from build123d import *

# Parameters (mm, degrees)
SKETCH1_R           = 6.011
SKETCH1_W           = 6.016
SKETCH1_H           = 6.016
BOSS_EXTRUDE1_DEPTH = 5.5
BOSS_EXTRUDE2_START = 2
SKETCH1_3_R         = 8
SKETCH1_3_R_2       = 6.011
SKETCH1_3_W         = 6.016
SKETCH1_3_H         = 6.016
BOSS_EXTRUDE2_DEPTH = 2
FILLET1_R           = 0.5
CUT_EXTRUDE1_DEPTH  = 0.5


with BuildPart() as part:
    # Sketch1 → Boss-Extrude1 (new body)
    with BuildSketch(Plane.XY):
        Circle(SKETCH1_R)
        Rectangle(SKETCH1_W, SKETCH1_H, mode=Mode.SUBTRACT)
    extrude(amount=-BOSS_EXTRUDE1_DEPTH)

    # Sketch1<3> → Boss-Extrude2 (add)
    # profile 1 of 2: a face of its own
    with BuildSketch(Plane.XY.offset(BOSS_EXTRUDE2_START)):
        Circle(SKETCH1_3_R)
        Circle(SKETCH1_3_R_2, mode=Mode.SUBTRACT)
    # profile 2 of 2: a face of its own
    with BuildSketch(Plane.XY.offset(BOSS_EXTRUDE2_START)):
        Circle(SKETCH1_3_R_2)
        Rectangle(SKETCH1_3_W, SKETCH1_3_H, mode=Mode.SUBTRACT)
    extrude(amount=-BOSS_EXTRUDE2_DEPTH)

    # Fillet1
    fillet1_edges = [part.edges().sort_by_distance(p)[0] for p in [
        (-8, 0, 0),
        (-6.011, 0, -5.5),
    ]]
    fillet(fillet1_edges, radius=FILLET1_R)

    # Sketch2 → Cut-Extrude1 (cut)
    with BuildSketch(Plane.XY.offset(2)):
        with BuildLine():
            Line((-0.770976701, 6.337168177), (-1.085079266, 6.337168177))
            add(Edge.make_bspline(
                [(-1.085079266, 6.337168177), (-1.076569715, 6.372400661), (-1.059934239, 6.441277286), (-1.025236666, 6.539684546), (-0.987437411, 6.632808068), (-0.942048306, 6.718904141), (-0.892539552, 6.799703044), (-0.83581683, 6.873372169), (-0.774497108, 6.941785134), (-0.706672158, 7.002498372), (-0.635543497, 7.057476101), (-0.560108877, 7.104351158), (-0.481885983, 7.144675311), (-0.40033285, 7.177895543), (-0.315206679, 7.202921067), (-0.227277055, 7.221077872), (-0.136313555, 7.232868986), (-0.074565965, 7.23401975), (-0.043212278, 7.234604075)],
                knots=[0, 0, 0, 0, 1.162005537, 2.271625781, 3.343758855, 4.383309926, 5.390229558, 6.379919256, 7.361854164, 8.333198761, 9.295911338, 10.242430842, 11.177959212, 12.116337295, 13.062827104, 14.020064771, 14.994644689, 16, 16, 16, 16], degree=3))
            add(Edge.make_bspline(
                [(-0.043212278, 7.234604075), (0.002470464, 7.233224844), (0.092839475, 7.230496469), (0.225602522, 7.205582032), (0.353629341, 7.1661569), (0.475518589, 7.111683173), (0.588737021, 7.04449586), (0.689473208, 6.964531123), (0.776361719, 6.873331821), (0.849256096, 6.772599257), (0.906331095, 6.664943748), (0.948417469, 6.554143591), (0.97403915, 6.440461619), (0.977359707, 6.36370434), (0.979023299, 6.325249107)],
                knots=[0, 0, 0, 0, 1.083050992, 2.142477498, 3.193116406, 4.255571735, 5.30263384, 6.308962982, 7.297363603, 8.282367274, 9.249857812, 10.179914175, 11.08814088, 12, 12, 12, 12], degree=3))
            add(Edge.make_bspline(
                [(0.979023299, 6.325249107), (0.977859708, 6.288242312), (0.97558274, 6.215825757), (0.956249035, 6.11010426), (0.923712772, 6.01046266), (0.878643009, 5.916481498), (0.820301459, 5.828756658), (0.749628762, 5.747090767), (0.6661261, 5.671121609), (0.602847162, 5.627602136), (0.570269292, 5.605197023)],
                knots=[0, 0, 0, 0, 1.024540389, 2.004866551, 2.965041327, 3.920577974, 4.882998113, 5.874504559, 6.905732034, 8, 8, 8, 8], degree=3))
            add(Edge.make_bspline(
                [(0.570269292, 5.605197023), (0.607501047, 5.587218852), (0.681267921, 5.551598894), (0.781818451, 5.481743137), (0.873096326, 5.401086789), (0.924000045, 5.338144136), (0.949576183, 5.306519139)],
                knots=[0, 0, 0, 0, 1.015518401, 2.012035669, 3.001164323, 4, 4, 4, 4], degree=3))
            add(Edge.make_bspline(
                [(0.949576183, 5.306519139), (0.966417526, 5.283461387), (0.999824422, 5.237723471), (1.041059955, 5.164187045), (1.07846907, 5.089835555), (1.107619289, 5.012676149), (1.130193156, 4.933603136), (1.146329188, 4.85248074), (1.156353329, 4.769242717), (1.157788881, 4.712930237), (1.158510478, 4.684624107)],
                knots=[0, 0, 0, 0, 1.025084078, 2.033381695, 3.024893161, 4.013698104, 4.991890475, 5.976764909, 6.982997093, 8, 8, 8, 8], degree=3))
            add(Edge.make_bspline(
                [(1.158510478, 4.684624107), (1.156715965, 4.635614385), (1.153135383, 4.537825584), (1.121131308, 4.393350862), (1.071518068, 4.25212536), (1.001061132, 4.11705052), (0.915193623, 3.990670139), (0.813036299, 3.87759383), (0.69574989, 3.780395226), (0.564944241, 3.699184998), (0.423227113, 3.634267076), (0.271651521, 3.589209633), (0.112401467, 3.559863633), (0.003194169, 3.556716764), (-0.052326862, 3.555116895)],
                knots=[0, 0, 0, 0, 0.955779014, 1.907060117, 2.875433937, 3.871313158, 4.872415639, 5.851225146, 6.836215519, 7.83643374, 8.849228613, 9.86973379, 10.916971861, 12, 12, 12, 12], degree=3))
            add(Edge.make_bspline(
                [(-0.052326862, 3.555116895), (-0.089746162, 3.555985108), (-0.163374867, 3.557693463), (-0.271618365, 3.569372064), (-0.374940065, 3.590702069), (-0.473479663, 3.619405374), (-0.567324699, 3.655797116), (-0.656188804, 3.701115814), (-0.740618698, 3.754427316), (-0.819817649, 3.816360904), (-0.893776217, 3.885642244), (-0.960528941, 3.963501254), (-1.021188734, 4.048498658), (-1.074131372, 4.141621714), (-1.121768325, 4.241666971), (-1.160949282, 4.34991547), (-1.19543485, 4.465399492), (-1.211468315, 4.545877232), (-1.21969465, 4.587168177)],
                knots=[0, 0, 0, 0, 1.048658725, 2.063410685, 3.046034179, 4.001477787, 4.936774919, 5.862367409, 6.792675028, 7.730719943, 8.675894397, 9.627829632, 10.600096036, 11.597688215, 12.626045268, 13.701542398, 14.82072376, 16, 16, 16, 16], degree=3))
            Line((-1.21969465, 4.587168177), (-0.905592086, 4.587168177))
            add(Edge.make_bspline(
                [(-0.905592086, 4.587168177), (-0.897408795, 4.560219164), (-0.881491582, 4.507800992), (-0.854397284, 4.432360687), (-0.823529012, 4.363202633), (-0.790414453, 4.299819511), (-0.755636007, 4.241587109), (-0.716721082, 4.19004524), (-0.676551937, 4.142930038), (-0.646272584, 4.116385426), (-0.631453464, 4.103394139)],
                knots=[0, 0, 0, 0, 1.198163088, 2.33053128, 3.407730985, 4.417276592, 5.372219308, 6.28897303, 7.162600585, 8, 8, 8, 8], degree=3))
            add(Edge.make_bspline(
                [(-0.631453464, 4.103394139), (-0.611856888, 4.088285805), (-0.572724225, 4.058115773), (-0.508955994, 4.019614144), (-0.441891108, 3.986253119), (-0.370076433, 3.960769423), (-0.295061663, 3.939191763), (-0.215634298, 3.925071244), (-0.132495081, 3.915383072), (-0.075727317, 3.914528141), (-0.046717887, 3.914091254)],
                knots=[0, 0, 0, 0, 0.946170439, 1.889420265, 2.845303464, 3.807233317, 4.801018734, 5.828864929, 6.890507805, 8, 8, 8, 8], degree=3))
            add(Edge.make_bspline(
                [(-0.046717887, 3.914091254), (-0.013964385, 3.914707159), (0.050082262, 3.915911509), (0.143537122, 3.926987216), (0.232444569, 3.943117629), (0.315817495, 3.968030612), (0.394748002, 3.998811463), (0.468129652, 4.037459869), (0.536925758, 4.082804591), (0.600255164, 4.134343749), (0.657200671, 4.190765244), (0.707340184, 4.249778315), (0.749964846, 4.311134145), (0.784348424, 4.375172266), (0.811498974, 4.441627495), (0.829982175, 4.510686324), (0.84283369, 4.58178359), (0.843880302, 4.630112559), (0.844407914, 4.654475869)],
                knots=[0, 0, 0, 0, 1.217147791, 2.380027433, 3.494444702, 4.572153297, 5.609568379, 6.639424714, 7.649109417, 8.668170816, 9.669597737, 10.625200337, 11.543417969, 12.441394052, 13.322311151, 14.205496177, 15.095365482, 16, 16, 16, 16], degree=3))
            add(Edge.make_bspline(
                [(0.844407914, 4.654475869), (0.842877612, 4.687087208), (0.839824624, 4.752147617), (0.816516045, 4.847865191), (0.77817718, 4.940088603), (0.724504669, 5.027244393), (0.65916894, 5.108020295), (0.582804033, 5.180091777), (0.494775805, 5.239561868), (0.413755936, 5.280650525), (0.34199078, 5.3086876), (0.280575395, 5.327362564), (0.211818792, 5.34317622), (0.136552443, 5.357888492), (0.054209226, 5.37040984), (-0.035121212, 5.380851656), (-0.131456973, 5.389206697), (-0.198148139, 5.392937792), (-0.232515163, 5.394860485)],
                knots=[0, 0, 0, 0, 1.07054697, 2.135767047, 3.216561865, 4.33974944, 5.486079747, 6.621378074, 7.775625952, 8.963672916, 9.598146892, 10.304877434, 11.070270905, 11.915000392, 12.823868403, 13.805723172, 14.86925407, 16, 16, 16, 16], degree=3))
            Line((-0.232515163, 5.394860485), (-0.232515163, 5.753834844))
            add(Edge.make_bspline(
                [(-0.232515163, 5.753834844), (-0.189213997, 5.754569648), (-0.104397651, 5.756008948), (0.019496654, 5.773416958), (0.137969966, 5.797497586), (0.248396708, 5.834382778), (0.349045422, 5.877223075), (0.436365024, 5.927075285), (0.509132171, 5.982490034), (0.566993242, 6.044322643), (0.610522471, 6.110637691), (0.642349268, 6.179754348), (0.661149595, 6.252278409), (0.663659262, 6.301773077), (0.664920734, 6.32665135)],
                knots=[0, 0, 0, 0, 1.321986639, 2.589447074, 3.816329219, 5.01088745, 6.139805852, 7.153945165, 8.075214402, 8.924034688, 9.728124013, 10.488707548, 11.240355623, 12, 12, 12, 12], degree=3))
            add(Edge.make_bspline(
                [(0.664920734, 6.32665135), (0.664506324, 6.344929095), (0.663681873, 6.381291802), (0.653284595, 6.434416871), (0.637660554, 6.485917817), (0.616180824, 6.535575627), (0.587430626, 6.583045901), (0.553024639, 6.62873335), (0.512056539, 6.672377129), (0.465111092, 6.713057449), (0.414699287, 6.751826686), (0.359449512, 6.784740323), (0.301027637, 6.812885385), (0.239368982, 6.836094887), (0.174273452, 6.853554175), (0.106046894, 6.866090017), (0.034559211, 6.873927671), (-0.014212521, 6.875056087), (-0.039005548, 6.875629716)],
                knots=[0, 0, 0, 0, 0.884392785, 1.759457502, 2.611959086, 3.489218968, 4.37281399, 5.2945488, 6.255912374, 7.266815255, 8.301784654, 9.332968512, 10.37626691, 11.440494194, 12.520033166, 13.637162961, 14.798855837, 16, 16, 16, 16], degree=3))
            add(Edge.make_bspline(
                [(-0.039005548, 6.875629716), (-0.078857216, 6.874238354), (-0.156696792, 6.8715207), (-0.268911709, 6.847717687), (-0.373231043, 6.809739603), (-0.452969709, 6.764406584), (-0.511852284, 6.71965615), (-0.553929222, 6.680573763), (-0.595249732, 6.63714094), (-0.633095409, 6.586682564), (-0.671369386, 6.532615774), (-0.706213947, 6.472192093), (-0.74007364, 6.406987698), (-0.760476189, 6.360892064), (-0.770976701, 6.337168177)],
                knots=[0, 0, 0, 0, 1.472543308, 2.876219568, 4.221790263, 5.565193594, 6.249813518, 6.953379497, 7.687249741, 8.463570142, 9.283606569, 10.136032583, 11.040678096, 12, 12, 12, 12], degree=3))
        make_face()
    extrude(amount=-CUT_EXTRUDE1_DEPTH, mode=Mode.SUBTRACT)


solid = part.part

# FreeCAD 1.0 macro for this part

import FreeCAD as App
import Part
import Sketcher
from FreeCAD import Vector
Q = App.Units.Quantity


def edges_at(feature, points):
    """Names of the edges that pass closest to the given points."""
    edges = feature.Shape.Edges
    near = lambda p: min(range(len(edges)), key=lambda i: edges[i].distToShape(Part.Vertex(*p))[0])
    return sorted({f"Edge{near(p) + 1}" for p in points})

doc = App.newDocument("Part")
body = doc.addObject("PartDesign::Body", "Body")

sketch1 = body.newObject("Sketcher::SketchObject", "Sketch")
sketch1.AttachmentSupport = (doc.getObject("XY_Plane"), [""])
sketch1.MapMode = "FlatFace"
sketch1.addGeometry([
    Part.Circle(Vector(0, 0, 0), Vector(0, 0, 1), 6),
    Part.LineSegment(Vector(3, -3, 0), Vector(-3, -3, 0)),
    Part.LineSegment(Vector(-3, -3, 0), Vector(-3, 3, 0)),
    Part.LineSegment(Vector(-3, 3, 0), Vector(3, 3, 0)),
    Part.LineSegment(Vector(3, 3, 0), Vector(3, -3, 0)),
], False)
sketch1.addConstraint([
    Sketcher.Constraint("Coincident", 1, 2, 2, 1),
    Sketcher.Constraint("Coincident", 2, 2, 3, 1),
    Sketcher.Constraint("Coincident", 3, 2, 4, 1),
    Sketcher.Constraint("Coincident", 4, 2, 1, 1),
    Sketcher.Constraint("Horizontal", 1),
    Sketcher.Constraint("Vertical", 2),
    Sketcher.Constraint("Horizontal", 3),
    Sketcher.Constraint("Vertical", 4),
    Sketcher.Constraint("Coincident", 0, 3, -1, 1),
    Sketcher.Constraint("Symmetric", 1, 2, 3, 2, -1, 1),
    Sketcher.Constraint("Equal", 3, 2),
    Sketcher.Constraint("Diameter", 0, Q("12.022 mm")),
    Sketcher.Constraint("DistanceX", 1, 2, 1, 1, Q("6.016 mm")),
])
pad1 = body.newObject("PartDesign::Pad", "Pad")
pad1.Profile = sketch1
pad1.Length = 5.5
pad1.Reversed = True

sketch2 = body.newObject("Sketcher::SketchObject", "Sketch001")
sketch2.AttachmentSupport = (doc.getObject("XY_Plane"), [""])
sketch2.MapMode = "FlatFace"
sketch2.AttachmentOffset = App.Placement(Vector(0, 0, 2), App.Rotation())
sketch2.addGeometry([
    Part.Circle(Vector(0, 0, 0), Vector(0, 0, 1), 8),
    Part.LineSegment(Vector(-3, -3, 0), Vector(-3, 3, 0)),
    Part.LineSegment(Vector(-3, 3, 0), Vector(3, 3, 0)),
    Part.LineSegment(Vector(3, 3, 0), Vector(3, -3, 0)),
    Part.LineSegment(Vector(3, -3, 0), Vector(-3, -3, 0)),
], False)
sketch2.addConstraint([
    Sketcher.Constraint("Coincident", 1, 2, 2, 1),
    Sketcher.Constraint("Coincident", 2, 2, 3, 1),
    Sketcher.Constraint("Coincident", 3, 2, 4, 1),
    Sketcher.Constraint("Coincident", 4, 2, 1, 1),
    Sketcher.Constraint("Vertical", 1),
    Sketcher.Constraint("Horizontal", 2),
    Sketcher.Constraint("Vertical", 3),
    Sketcher.Constraint("Horizontal", 4),
    Sketcher.Constraint("Coincident", 0, 3, -1, 1),
    Sketcher.Constraint("Symmetric", 1, 2, 3, 2, -1, 1),
    Sketcher.Constraint("Equal", 4, 1),
    Sketcher.Constraint("Diameter", 0, Q("16 mm")),
    Sketcher.Constraint("DistanceX", 2, 1, 2, 2, Q("6.016 mm")),
])
pad2 = body.newObject("PartDesign::Pad", "Pad001")
pad2.Profile = sketch2
pad2.Length = 2
pad2.Reversed = True
doc.recompute()

fillet = body.newObject("PartDesign::Fillet", "Fillet")
fillet.Base = (pad2, edges_at(pad2, [(-8, 0, 0), (-6.011, 0, -5.5)]))
fillet.Radius = 0.5

sketch3 = body.newObject("Sketcher::SketchObject", "Sketch002")
sketch3.AttachmentSupport = (doc.getObject("XY_Plane"), [""])
sketch3.MapMode = "FlatFace"
sketch3.AttachmentOffset = App.Placement(Vector(0, 0, 2), App.Rotation())
sketch3.addGeometry([
    Part.LineSegment(Vector(-1.085079, 6.337168, 0), Vector(-0.770977, 6.337168, 0)),
    Part.BSplineCurve([Vector(-0.039006, 6.87563, 0), Vector(-0.078857, 6.874238, 0), Vector(-0.156697, 6.871521, 0), Vector(-0.268912, 6.847718, 0), Vector(-0.373231, 6.80974, 0), Vector(-0.45297, 6.764407, 0), Vector(-0.511852, 6.719656, 0), Vector(-0.553929, 6.680574, 0), Vector(-0.59525, 6.637141, 0), Vector(-0.633095, 6.586683, 0), Vector(-0.671369, 6.532616, 0), Vector(-0.706214, 6.472192, 0), Vector(-0.740074, 6.406988, 0), Vector(-0.760476, 6.360892, 0), Vector(-0.770977, 6.337168, 0)], [4, 1, 1, 1, 1, 1, 1, 1, 1, 1, 1, 1, 4], [0, 1.472543308, 2.876219568, 4.221790263, 5.565193594, 6.249813518, 6.953379497, 7.687249741, 8.463570142, 9.283606569, 10.136032583, 11.040678096, 12], False, 3, [1, 1, 1, 1, 1, 1, 1, 1, 1, 1, 1, 1, 1, 1, 1], False),
    Part.BSplineCurve([Vector(0.664921, 6.326651, 0), Vector(0.664506, 6.344929, 0), Vector(0.663682, 6.381292, 0), Vector(0.653285, 6.434417, 0), Vector(0.637661, 6.485918, 0), Vector(0.616181, 6.535576, 0), Vector(0.587431, 6.583046, 0), Vector(0.553025, 6.628733, 0), Vector(0.512057, 6.672377, 0), Vector(0.465111, 6.713057, 0), Vector(0.414699, 6.751827, 0), Vector(0.35945, 6.78474, 0), Vector(0.301028, 6.812885, 0), Vector(0.239369, 6.836095, 0), Vector(0.174273, 6.853554, 0), Vector(0.106047, 6.86609, 0), Vector(0.034559, 6.873928, 0), Vector(-0.014213, 6.875056, 0), Vector(-0.039006, 6.87563, 0)], [4, 1, 1, 1, 1, 1, 1, 1, 1, 1, 1, 1, 1, 1, 1, 1, 4], [0, 0.884392785, 1.759457502, 2.611959086, 3.489218968, 4.37281399, 5.2945488, 6.255912374, 7.266815255, 8.301784654, 9.332968512, 10.37626691, 11.440494194, 12.520033166, 13.637162961, 14.798855837, 16], False, 3, [1, 1, 1, 1, 1, 1, 1, 1, 1, 1, 1, 1, 1, 1, 1, 1, 1, 1, 1], False),
    Part.BSplineCurve([Vector(-0.232515, 5.753835, 0), Vector(-0.189214, 5.75457, 0), Vector(-0.104398, 5.756009, 0), Vector(0.019497, 5.773417, 0), Vector(0.13797, 5.797498, 0), Vector(0.248397, 5.834383, 0), Vector(0.349045, 5.877223, 0), Vector(0.436365, 5.927075, 0), Vector(0.509132, 5.98249, 0), Vector(0.566993, 6.044323, 0), Vector(0.610522, 6.110638, 0), Vector(0.642349, 6.179754, 0), Vector(0.66115, 6.252278, 0), Vector(0.663659, 6.301773, 0), Vector(0.664921, 6.326651, 0)], [4, 1, 1, 1, 1, 1, 1, 1, 1, 1, 1, 1, 4], [0, 1.321986639, 2.589447074, 3.816329219, 5.01088745, 6.139805852, 7.153945165, 8.075214402, 8.924034688, 9.728124013, 10.488707548, 11.240355623, 12], False, 3, [1, 1, 1, 1, 1, 1, 1, 1, 1, 1, 1, 1, 1, 1, 1], False),
    Part.LineSegment(Vector(-0.232515, 5.753835, 0), Vector(-0.232515, 5.39486, 0)),
    Part.BSplineCurve([Vector(0.844408, 4.654476, 0), Vector(0.842878, 4.687087, 0), Vector(0.839825, 4.752148, 0), Vector(0.816516, 4.847865, 0), Vector(0.778177, 4.940089, 0), Vector(0.724505, 5.027244, 0), Vector(0.659169, 5.10802, 0), Vector(0.582804, 5.180092, 0), Vector(0.494776, 5.239562, 0), Vector(0.413756, 5.280651, 0), Vector(0.341991, 5.308688, 0), Vector(0.280575, 5.327363, 0), Vector(0.211819, 5.343176, 0), Vector(0.136552, 5.357888, 0), Vector(0.054209, 5.37041, 0), Vector(-0.035121, 5.380852, 0), Vector(-0.131457, 5.389207, 0), Vector(-0.198148, 5.392938, 0), Vector(-0.232515, 5.39486, 0)], [4, 1, 1, 1, 1, 1, 1, 1, 1, 1, 1, 1, 1, 1, 1, 1, 4], [0, 1.07054697, 2.135767047, 3.216561865, 4.33974944, 5.486079747, 6.621378074, 7.775625952, 8.963672916, 9.598146892, 10.304877434, 11.070270905, 11.915000392, 12.823868403, 13.805723172, 14.86925407, 16], False, 3, [1, 1, 1, 1, 1, 1, 1, 1, 1, 1, 1, 1, 1, 1, 1, 1, 1, 1, 1], False),
    Part.BSplineCurve([Vector(-0.046718, 3.914091, 0), Vector(-0.013964, 3.914707, 0), Vector(0.050082, 3.915912, 0), Vector(0.143537, 3.926987, 0), Vector(0.232445, 3.943118, 0), Vector(0.315817, 3.968031, 0), Vector(0.394748, 3.998811, 0), Vector(0.46813, 4.03746, 0), Vector(0.536926, 4.082805, 0), Vector(0.600255, 4.134344, 0), Vector(0.657201, 4.190765, 0), Vector(0.70734, 4.249778, 0), Vector(0.749965, 4.311134, 0), Vector(0.784348, 4.375172, 0), Vector(0.811499, 4.441627, 0), Vector(0.829982, 4.510686, 0), Vector(0.842834, 4.581784, 0), Vector(0.84388, 4.630113, 0), Vector(0.844408, 4.654476, 0)], [4, 1, 1, 1, 1, 1, 1, 1, 1, 1, 1, 1, 1, 1, 1, 1, 4], [0, 1.217147791, 2.380027433, 3.494444702, 4.572153297, 5.609568379, 6.639424714, 7.649109417, 8.668170816, 9.669597737, 10.625200337, 11.543417969, 12.441394052, 13.322311151, 14.205496177, 15.095365482, 16], False, 3, [1, 1, 1, 1, 1, 1, 1, 1, 1, 1, 1, 1, 1, 1, 1, 1, 1, 1, 1], False),
    Part.BSplineCurve([Vector(-0.631453, 4.103394, 0), Vector(-0.611857, 4.088286, 0), Vector(-0.572724, 4.058116, 0), Vector(-0.508956, 4.019614, 0), Vector(-0.441891, 3.986253, 0), Vector(-0.370076, 3.960769, 0), Vector(-0.295062, 3.939192, 0), Vector(-0.215634, 3.925071, 0), Vector(-0.132495, 3.915383, 0), Vector(-0.075727, 3.914528, 0), Vector(-0.046718, 3.914091, 0)], [4, 1, 1, 1, 1, 1, 1, 1, 4], [0, 0.946170439, 1.889420265, 2.845303464, 3.807233317, 4.801018734, 5.828864929, 6.890507805, 8], False, 3, [1, 1, 1, 1, 1, 1, 1, 1, 1, 1, 1], False),
    Part.BSplineCurve([Vector(-0.905592, 4.587168, 0), Vector(-0.897409, 4.560219, 0), Vector(-0.881492, 4.507801, 0), Vector(-0.854397, 4.432361, 0), Vector(-0.823529, 4.363203, 0), Vector(-0.790414, 4.29982, 0), Vector(-0.755636, 4.241587, 0), Vector(-0.716721, 4.190045, 0), Vector(-0.676552, 4.14293, 0), Vector(-0.646273, 4.116385, 0), Vector(-0.631453, 4.103394, 0)], [4, 1, 1, 1, 1, 1, 1, 1, 4], [0, 1.198163088, 2.33053128, 3.407730985, 4.417276592, 5.372219308, 6.28897303, 7.162600585, 8], False, 3, [1, 1, 1, 1, 1, 1, 1, 1, 1, 1, 1], False),
    Part.LineSegment(Vector(-0.905592, 4.587168, 0), Vector(-1.219695, 4.587168, 0)),
    Part.BSplineCurve([Vector(-0.052327, 3.555117, 0), Vector(-0.089746, 3.555985, 0), Vector(-0.163375, 3.557693, 0), Vector(-0.271618, 3.569372, 0), Vector(-0.37494, 3.590702, 0), Vector(-0.47348, 3.619405, 0), Vector(-0.567325, 3.655797, 0), Vector(-0.656189, 3.701116, 0), Vector(-0.740619, 3.754427, 0), Vector(-0.819818, 3.816361, 0), Vector(-0.893776, 3.885642, 0), Vector(-0.960529, 3.963501, 0), Vector(-1.021189, 4.048499, 0), Vector(-1.074131, 4.141622, 0), Vector(-1.121768, 4.241667, 0), Vector(-1.160949, 4.349915, 0), Vector(-1.195435, 4.465399, 0), Vector(-1.211468, 4.545877, 0), Vector(-1.219695, 4.587168, 0)], [4, 1, 1, 1, 1, 1, 1, 1, 1, 1, 1, 1, 1, 1, 1, 1, 4], [0, 1.048658725, 2.063410685, 3.046034179, 4.001477787, 4.936774919, 5.862367409, 6.792675028, 7.730719943, 8.675894397, 9.627829632, 10.600096036, 11.597688215, 12.626045268, 13.701542398, 14.82072376, 16], False, 3, [1, 1, 1, 1, 1, 1, 1, 1, 1, 1, 1, 1, 1, 1, 1, 1, 1, 1, 1], False),
    Part.BSplineCurve([Vector(1.15851, 4.684624, 0), Vector(1.156716, 4.635614, 0), Vector(1.153135, 4.537826, 0), Vector(1.121131, 4.393351, 0), Vector(1.071518, 4.252125, 0), Vector(1.001061, 4.117051, 0), Vector(0.915194, 3.99067, 0), Vector(0.813036, 3.877594, 0), Vector(0.69575, 3.780395, 0), Vector(0.564944, 3.699185, 0), Vector(0.423227, 3.634267, 0), Vector(0.271652, 3.58921, 0), Vector(0.112401, 3.559864, 0), Vector(0.003194, 3.556717, 0), Vector(-0.052327, 3.555117, 0)], [4, 1, 1, 1, 1, 1, 1, 1, 1, 1, 1, 1, 4], [0, 0.955779014, 1.907060117, 2.875433937, 3.871313158, 4.872415639, 5.851225146, 6.836215519, 7.83643374, 8.849228613, 9.86973379, 10.916971861, 12], False, 3, [1, 1, 1, 1, 1, 1, 1, 1, 1, 1, 1, 1, 1, 1, 1], False),
    Part.BSplineCurve([Vector(0.949576, 5.306519, 0), Vector(0.966418, 5.283461, 0), Vector(0.999824, 5.237723, 0), Vector(1.04106, 5.164187, 0), Vector(1.078469, 5.089836, 0), Vector(1.107619, 5.012676, 0), Vector(1.130193, 4.933603, 0), Vector(1.146329, 4.852481, 0), Vector(1.156353, 4.769243, 0), Vector(1.157789, 4.71293, 0), Vector(1.15851, 4.684624, 0)], [4, 1, 1, 1, 1, 1, 1, 1, 4], [0, 1.025084078, 2.033381695, 3.024893161, 4.013698104, 4.991890475, 5.976764909, 6.982997093, 8], False, 3, [1, 1, 1, 1, 1, 1, 1, 1, 1, 1, 1], False),
    Part.BSplineCurve([Vector(0.570269, 5.605197, 0), Vector(0.607501, 5.587219, 0), Vector(0.681268, 5.551599, 0), Vector(0.781818, 5.481743, 0), Vector(0.873096, 5.401087, 0), Vector(0.924, 5.338144, 0), Vector(0.949576, 5.306519, 0)], [4, 1, 1, 1, 4], [0, 1.015518401, 2.012035669, 3.001164323, 4], False, 3, [1, 1, 1, 1, 1, 1, 1], False),
    Part.BSplineCurve([Vector(0.979023, 6.325249, 0), Vector(0.97786, 6.288242, 0), Vector(0.975583, 6.215826, 0), Vector(0.956249, 6.110104, 0), Vector(0.923713, 6.010463, 0), Vector(0.878643, 5.916481, 0), Vector(0.820301, 5.828757, 0), Vector(0.749629, 5.747091, 0), Vector(0.666126, 5.671122, 0), Vector(0.602847, 5.627602, 0), Vector(0.570269, 5.605197, 0)], [4, 1, 1, 1, 1, 1, 1, 1, 4], [0, 1.024540389, 2.004866551, 2.965041327, 3.920577974, 4.882998113, 5.874504559, 6.905732034, 8], False, 3, [1, 1, 1, 1, 1, 1, 1, 1, 1, 1, 1], False),
    Part.BSplineCurve([Vector(-0.043212, 7.234604, 0), Vector(0.00247, 7.233225, 0), Vector(0.092839, 7.230496, 0), Vector(0.225603, 7.205582, 0), Vector(0.353629, 7.166157, 0), Vector(0.475519, 7.111683, 0), Vector(0.588737, 7.044496, 0), Vector(0.689473, 6.964531, 0), Vector(0.776362, 6.873332, 0), Vector(0.849256, 6.772599, 0), Vector(0.906331, 6.664944, 0), Vector(0.948417, 6.554144, 0), Vector(0.974039, 6.440462, 0), Vector(0.97736, 6.363704, 0), Vector(0.979023, 6.325249, 0)], [4, 1, 1, 1, 1, 1, 1, 1, 1, 1, 1, 1, 4], [0, 1.083050992, 2.142477498, 3.193116406, 4.255571735, 5.30263384, 6.308962982, 7.297363603, 8.282367274, 9.249857812, 10.179914175, 11.08814088, 12], False, 3, [1, 1, 1, 1, 1, 1, 1, 1, 1, 1, 1, 1, 1, 1, 1], False),
    Part.BSplineCurve([Vector(-1.085079, 6.337168, 0), Vector(-1.07657, 6.372401, 0), Vector(-1.059934, 6.441277, 0), Vector(-1.025237, 6.539685, 0), Vector(-0.987437, 6.632808, 0), Vector(-0.942048, 6.718904, 0), Vector(-0.89254, 6.799703, 0), Vector(-0.835817, 6.873372, 0), Vector(-0.774497, 6.941785, 0), Vector(-0.706672, 7.002498, 0), Vector(-0.635543, 7.057476, 0), Vector(-0.560109, 7.104351, 0), Vector(-0.481886, 7.144675, 0), Vector(-0.400333, 7.177896, 0), Vector(-0.315207, 7.202921, 0), Vector(-0.227277, 7.221078, 0), Vector(-0.136314, 7.232869, 0), Vector(-0.074566, 7.23402, 0), Vector(-0.043212, 7.234604, 0)], [4, 1, 1, 1, 1, 1, 1, 1, 1, 1, 1, 1, 1, 1, 1, 1, 4], [0, 1.162005537, 2.271625781, 3.343758855, 4.383309926, 5.390229558, 6.379919256, 7.361854164, 8.333198761, 9.295911338, 10.242430842, 11.177959212, 12.116337295, 13.062827104, 14.020064771, 14.994644689, 16], False, 3, [1, 1, 1, 1, 1, 1, 1, 1, 1, 1, 1, 1, 1, 1, 1, 1, 1, 1, 1], False),
], False)
sketch3.addConstraint([
    Sketcher.Constraint("Block", 1),
    Sketcher.Constraint("Block", 2),
    Sketcher.Constraint("Block", 3),
    Sketcher.Constraint("Block", 5),
    Sketcher.Constraint("Block", 6),
    Sketcher.Constraint("Block", 7),
    Sketcher.Constraint("Block", 8),
    Sketcher.Constraint("Block", 10),
    Sketcher.Constraint("Block", 11),
    Sketcher.Constraint("Block", 12),
    Sketcher.Constraint("Block", 13),
    Sketcher.Constraint("Block", 14),
    Sketcher.Constraint("Block", 15),
    Sketcher.Constraint("Block", 16),
    Sketcher.Constraint("Coincident", 0, 2, 1, 2),
    Sketcher.Constraint("Coincident", 3, 1, 4, 1),
    Sketcher.Constraint("Coincident", 4, 2, 5, 2),
    Sketcher.Constraint("Coincident", 8, 1, 9, 1),
    Sketcher.Constraint("Coincident", 9, 2, 10, 2),
    Sketcher.Constraint("Coincident", 16, 1, 0, 1),
])
pocket1 = body.newObject("PartDesign::Pocket", "Pocket")
pocket1.Profile = sketch3
pocket1.Length = 0.5

doc.recompute()
